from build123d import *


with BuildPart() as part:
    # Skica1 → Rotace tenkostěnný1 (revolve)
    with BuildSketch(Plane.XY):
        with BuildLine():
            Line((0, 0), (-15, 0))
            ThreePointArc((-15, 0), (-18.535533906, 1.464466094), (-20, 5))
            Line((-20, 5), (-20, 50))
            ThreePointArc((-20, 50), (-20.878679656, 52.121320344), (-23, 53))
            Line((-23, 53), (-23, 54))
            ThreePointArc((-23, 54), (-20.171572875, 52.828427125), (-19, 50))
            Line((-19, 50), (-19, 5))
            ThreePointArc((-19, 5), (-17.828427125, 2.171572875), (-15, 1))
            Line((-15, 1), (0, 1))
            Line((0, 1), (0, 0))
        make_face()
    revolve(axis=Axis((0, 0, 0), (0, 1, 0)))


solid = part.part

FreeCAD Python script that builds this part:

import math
import FreeCAD as App
import Part
import Sketcher

V = App.Vector

doc = App.newDocument("Part")
params = doc.addObject("Spreadsheet::Sheet", "Params")
for row, (alias, value) in enumerate([
    ("sketch1_radius", "4 mm"),
    ("sketch1_radius2", "3 mm"),
    ("sketch1_width", "15 mm"),
    ("sketch1_height", "45 mm"),
    ("revolution_angle", "360 deg"),
], start=1):
    params.set(f"A{row}", alias)
    params.set(f"B{row}", "=" + value)
    params.setAlias(f"B{row}", alias)

body = doc.addObject("PartDesign::Body", "Body")

# Sketch on XY plane
sketch1 = doc.addObject("Sketcher::SketchObject", "Sketch")
body.addObject(sketch1)
sketch1.AttachmentSupport = (doc.XY_Plane, [""])
sketch1.MapMode = "FlatFace"
sketch1.addGeometry([
    Part.LineSegment(V(-15, 0, 0), V(0, 0, 0)),  # 0
    Part.LineSegment(V(0, 0, 0), V(0, 1, 0)),  # 1
    Part.LineSegment(V(0, 1, 0), V(-15, 1, 0)),  # 2
    Part.ArcOfCircle(Part.Circle(V(-15, 5, 0), V(0, 0, 1), 4), math.radians(180), math.radians(270)),  # 3
    Part.LineSegment(V(-19, 5, 0), V(-19, 50, 0)),  # 4
    Part.ArcOfCircle(Part.Circle(V(-23, 50, 0), V(0, 0, 1), 4), math.radians(0), math.radians(90)),  # 5
    Part.LineSegment(V(-23, 54, 0), V(-23, 53, 0)),  # 6
    Part.ArcOfCircle(Part.Circle(V(-23, 50, 0), V(0, 0, 1), 3), math.radians(0), math.radians(90)),  # 7
    Part.LineSegment(V(-20, 50, 0), V(-20, 5, 0)),  # 8
    Part.ArcOfCircle(Part.Circle(V(-15, 5, 0), V(0, 0, 1), 5), math.radians(180), math.radians(270)),  # 9
], False)
sketch1.addConstraint([
    Sketcher.Constraint("Coincident", 0, 2, 1, 1),
    Sketcher.Constraint("Coincident", 1, 2, 2, 1),
    Sketcher.Constraint("Tangent", 2, 2, 3, 2),
    Sketcher.Constraint("Tangent", 3, 1, 4, 1),
    Sketcher.Constraint("Tangent", 4, 2, 5, 1),
    Sketcher.Constraint("Coincident", 5, 2, 6, 1),
    Sketcher.Constraint("Coincident", 6, 2, 7, 2),
    Sketcher.Constraint("Tangent", 7, 1, 8, 1),
    Sketcher.Constraint("Tangent", 8, 2, 9, 1),
    Sketcher.Constraint("Tangent", 9, 2, 0, 1),
    Sketcher.Constraint("Horizontal", 0),
    Sketcher.Constraint("Vertical", 1),
    Sketcher.Constraint("Horizontal", 2),
    Sketcher.Constraint("Vertical", 4),
    Sketcher.Constraint("Vertical", 6),
    Sketcher.Constraint("Vertical", 8),
    Sketcher.Constraint("Coincident", 0, 2, -1, 1),
    Sketcher.Constraint("Coincident", 7, 3, 5, 3),
    Sketcher.Constraint("Coincident", 9, 3, 3, 3),
    Sketcher.Constraint("Equal", 3, 5),
    Sketcher.Constraint("Vertical", 7, 3, 5, 2),
    Sketcher.Constraint("Radius", 3, 4.0),
    Sketcher.Constraint("Radius", 7, 3.0),
    Sketcher.Constraint("DistanceX", 0, 1, 0, 2, 15.0),
    Sketcher.Constraint("DistanceY", 4, 1, 4, 2, 45.0),
])
sketch1.setExpression("Constraints[21]", "Params.sketch1_radius")
sketch1.setExpression("Constraints[22]", "Params.sketch1_radius2")
sketch1.setExpression("Constraints[23]", "Params.sketch1_width")
sketch1.setExpression("Constraints[24]", "Params.sketch1_height")
revolution = doc.addObject("PartDesign::Revolution", "Revolution")
body.addObject(revolution)
revolution.Profile = sketch1
revolution.ReferenceAxis = (sketch1, ["V_Axis"])
revolution.setExpression("Angle", "Params.revolution_angle")

doc.recompute()
